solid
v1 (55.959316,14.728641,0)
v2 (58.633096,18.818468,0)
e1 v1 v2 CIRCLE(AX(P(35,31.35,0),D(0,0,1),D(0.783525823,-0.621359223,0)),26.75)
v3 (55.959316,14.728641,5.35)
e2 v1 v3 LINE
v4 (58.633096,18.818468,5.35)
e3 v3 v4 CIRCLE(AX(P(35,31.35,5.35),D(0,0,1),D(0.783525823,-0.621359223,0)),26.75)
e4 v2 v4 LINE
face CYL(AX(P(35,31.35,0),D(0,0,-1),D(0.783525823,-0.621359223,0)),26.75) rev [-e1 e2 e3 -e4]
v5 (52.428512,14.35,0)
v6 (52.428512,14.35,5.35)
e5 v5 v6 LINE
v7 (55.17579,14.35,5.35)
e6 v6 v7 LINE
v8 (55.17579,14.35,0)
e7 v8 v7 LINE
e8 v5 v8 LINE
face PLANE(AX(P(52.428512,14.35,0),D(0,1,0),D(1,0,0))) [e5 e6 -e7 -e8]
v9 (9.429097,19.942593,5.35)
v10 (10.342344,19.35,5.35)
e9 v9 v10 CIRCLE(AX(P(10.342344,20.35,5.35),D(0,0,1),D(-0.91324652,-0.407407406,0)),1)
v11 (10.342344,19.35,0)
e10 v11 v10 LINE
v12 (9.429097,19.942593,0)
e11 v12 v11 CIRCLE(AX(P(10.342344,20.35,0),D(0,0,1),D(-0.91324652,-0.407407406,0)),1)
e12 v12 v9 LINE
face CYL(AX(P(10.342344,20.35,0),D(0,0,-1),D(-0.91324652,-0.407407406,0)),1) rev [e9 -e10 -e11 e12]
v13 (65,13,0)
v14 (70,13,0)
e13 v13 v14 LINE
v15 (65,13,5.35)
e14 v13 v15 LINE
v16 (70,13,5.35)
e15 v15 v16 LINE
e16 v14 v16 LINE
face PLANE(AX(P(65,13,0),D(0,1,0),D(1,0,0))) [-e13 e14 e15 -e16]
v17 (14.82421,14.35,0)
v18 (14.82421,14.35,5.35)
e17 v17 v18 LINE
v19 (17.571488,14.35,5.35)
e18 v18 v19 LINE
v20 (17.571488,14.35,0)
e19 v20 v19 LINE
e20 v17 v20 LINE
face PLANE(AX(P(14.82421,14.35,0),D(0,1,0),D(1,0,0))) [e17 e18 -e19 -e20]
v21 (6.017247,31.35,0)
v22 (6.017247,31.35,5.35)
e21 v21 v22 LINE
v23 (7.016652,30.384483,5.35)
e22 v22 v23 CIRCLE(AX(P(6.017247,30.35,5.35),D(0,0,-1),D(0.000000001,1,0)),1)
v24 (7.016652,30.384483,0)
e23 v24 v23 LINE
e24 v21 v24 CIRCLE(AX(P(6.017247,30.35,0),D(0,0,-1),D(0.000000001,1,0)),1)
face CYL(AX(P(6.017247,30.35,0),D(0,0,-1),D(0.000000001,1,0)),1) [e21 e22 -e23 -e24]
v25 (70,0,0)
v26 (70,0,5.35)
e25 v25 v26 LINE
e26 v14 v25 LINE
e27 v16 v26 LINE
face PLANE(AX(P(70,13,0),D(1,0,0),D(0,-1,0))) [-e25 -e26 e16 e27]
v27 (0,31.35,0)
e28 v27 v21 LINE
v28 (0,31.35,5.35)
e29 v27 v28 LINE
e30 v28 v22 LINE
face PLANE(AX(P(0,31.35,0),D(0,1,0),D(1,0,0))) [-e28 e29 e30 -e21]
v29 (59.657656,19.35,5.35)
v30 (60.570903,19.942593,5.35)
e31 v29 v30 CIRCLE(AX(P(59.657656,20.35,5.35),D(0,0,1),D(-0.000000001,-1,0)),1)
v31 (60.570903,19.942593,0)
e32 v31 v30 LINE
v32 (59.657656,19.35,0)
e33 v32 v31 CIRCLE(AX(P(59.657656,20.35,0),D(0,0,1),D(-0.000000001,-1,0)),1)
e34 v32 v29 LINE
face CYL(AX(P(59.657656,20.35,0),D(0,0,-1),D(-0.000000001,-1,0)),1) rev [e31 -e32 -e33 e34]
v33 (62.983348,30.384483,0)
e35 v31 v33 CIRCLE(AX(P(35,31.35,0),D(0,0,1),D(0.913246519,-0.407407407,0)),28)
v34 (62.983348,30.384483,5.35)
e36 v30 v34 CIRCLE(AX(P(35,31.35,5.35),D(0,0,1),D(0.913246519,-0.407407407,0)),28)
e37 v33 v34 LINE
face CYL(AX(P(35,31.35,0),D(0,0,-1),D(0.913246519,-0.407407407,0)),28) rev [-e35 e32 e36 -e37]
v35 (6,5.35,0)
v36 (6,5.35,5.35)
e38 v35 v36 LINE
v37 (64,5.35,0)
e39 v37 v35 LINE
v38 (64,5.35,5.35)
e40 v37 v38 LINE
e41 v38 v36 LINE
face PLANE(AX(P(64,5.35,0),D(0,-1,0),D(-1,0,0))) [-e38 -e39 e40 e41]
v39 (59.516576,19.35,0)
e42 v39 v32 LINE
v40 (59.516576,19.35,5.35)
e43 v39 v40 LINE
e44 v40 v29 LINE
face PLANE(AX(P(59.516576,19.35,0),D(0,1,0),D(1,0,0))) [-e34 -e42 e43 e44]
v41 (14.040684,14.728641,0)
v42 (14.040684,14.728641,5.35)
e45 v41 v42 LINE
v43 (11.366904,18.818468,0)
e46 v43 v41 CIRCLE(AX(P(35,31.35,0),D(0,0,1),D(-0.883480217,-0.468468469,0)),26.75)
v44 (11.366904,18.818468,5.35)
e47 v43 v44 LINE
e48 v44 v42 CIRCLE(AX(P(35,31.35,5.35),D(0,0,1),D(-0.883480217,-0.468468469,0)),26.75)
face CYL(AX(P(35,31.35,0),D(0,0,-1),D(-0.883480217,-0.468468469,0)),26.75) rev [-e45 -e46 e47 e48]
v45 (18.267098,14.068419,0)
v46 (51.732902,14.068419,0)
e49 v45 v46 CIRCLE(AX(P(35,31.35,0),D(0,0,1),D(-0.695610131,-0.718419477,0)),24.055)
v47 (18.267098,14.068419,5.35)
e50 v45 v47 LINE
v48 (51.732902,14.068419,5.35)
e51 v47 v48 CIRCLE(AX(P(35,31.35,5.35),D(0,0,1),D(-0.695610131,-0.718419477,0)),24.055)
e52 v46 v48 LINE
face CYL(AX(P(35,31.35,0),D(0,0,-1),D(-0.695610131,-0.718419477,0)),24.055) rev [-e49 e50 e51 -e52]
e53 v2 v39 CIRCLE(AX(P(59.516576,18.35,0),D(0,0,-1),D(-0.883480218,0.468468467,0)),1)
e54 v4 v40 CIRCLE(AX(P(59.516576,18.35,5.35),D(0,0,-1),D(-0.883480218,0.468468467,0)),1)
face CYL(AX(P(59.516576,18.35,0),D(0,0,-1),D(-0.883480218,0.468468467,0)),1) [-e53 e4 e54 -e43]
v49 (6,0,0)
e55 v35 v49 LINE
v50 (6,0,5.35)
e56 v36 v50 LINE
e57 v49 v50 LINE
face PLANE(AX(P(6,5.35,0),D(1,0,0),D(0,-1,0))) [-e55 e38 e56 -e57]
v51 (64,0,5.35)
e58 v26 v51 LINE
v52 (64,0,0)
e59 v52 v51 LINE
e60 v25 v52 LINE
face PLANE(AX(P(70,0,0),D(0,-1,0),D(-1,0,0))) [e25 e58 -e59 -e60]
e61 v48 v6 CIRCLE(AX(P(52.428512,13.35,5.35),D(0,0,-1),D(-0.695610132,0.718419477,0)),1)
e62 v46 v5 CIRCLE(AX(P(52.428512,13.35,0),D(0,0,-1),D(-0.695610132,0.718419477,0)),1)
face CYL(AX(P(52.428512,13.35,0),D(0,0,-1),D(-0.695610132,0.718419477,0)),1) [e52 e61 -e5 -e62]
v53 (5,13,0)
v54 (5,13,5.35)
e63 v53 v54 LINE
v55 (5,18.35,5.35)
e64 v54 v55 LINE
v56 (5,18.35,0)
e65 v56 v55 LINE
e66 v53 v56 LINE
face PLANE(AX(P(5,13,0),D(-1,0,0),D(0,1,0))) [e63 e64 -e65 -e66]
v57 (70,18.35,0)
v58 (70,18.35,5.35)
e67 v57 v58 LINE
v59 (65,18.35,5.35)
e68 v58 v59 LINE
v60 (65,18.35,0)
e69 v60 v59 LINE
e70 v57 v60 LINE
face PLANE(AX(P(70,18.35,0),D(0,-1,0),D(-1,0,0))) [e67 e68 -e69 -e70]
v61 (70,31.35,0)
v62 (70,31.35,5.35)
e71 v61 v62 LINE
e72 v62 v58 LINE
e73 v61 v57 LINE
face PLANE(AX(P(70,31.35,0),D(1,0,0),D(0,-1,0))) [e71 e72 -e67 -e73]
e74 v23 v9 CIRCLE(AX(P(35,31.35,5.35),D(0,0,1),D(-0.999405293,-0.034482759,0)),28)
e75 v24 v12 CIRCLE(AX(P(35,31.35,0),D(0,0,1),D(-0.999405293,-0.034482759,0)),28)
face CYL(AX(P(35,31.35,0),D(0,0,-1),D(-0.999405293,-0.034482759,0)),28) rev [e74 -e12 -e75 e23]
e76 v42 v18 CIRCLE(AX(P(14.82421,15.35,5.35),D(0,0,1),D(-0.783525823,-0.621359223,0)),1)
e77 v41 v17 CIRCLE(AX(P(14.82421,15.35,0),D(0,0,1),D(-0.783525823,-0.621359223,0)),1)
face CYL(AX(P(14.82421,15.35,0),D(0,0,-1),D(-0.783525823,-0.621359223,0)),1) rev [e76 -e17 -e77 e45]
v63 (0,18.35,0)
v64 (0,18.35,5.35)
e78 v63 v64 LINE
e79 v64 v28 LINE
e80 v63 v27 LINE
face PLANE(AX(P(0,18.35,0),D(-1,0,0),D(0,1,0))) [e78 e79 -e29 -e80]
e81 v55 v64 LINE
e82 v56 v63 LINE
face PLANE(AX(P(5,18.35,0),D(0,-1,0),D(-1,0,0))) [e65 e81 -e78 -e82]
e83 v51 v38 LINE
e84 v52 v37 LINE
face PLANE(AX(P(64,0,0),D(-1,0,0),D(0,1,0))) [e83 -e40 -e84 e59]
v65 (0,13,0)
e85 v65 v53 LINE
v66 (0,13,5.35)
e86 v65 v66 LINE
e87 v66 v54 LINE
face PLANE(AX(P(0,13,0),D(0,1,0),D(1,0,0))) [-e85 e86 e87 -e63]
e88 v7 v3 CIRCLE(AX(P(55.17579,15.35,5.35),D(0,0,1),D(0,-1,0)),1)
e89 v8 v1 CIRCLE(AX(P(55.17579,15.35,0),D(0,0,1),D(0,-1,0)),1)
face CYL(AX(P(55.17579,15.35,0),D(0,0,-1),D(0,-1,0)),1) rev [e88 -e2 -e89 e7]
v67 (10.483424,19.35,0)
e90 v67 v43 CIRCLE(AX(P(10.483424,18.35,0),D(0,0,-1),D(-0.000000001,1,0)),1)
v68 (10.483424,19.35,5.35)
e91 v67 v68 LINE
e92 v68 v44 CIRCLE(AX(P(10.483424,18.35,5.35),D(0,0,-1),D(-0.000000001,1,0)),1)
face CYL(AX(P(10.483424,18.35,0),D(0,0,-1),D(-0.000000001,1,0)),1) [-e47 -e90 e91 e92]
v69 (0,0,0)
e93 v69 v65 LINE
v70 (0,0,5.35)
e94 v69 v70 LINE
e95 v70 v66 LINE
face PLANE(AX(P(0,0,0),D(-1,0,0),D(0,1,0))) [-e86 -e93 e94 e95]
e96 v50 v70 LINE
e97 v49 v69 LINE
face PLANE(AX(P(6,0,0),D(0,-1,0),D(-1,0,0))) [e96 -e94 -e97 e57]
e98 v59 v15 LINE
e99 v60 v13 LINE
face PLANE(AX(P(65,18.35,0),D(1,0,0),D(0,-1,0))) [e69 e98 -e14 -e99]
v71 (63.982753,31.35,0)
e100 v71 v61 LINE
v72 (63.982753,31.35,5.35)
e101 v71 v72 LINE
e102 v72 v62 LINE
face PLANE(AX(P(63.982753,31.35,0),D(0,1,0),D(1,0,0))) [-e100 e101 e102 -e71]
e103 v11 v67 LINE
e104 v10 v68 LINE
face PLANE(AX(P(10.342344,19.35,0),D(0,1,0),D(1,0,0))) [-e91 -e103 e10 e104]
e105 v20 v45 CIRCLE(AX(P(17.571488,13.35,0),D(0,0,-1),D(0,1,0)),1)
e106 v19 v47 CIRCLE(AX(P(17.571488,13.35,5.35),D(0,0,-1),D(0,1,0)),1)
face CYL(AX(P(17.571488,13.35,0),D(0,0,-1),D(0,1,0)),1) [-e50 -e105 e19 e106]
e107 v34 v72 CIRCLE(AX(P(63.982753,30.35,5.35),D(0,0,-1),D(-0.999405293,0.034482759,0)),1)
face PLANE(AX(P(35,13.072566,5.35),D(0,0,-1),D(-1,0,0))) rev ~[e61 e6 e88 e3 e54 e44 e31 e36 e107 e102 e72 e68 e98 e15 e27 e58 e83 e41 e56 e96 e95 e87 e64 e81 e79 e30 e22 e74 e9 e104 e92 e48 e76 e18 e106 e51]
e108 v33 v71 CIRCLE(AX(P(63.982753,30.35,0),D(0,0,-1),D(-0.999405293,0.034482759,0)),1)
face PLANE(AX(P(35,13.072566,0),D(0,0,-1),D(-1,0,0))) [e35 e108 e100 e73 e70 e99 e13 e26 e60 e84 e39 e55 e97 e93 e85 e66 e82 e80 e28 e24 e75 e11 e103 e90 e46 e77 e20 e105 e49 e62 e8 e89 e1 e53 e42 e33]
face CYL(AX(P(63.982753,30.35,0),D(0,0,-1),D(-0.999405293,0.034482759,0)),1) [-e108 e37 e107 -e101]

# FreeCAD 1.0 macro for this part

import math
import FreeCAD as App
import Part
import Sketcher

doc = App.newDocument("Part")
body = doc.addObject("PartDesign::Body", "Body")

# Sketch on XY plane
sketch1 = body.newObject("Sketcher::SketchObject", "Sketch")
sketch1.AttachmentSupport = (doc.getObject("XY_Plane"), [""])
sketch1.MapMode = "FlatFace"
sketch1.addGeometry(Part.LineSegment(App.Vector(10.48, 19.35, 0), App.Vector(10.34, 19.35, 0)), False)
sketch1.addGeometry(Part.ArcOfCircle(Part.Circle(App.Vector(10.34, 20.35, 0), App.Vector(0, 0, 1), 1), math.radians(-156), math.radians(-90)), False)
sketch1.addGeometry(Part.ArcOfCircle(Part.Circle(App.Vector(35, 31.35, 0), App.Vector(0, 0, 1), 28), math.radians(-178), math.radians(-156)), False)
sketch1.addGeometry(Part.ArcOfCircle(Part.Circle(App.Vector(6.02, 30.35, 0), App.Vector(0, 0, 1), 1), math.radians(2), math.radians(90)), False)
sketch1.addGeometry(Part.LineSegment(App.Vector(6.02, 31.35, 0), App.Vector(0, 31.35, 0)), False)
sketch1.addGeometry(Part.LineSegment(App.Vector(0, 31.35, 0), App.Vector(0, 18.35, 0)), False)
sketch1.addGeometry(Part.LineSegment(App.Vector(0, 18.35, 0), App.Vector(5, 18.35, 0)), False)
sketch1.addGeometry(Part.LineSegment(App.Vector(5, 18.35, 0), App.Vector(5, 13, 0)), False)
sketch1.addGeometry(Part.LineSegment(App.Vector(5, 13, 0), App.Vector(0, 13, 0)), False)
sketch1.addGeometry(Part.LineSegment(App.Vector(0, 13, 0), App.Vector(0, 0, 0)), False)
sketch1.addGeometry(Part.LineSegment(App.Vector(0, 0, 0), App.Vector(6, 0, 0)), False)
sketch1.addGeometry(Part.LineSegment(App.Vector(6, 0, 0), App.Vector(6, 5.35, 0)), False)
sketch1.addGeometry(Part.LineSegment(App.Vector(6, 5.35, 0), App.Vector(64, 5.35, 0)), False)
sketch1.addGeometry(Part.LineSegment(App.Vector(64, 5.35, 0), App.Vector(64, 0, 0)), False)
sketch1.addGeometry(Part.LineSegment(App.Vector(64, 0, 0), App.Vector(70, 0, 0)), False)
sketch1.addGeometry(Part.LineSegment(App.Vector(70, 0, 0), App.Vector(70, 13, 0)), False)
sketch1.addGeometry(Part.LineSegment(App.Vector(70, 13, 0), App.Vector(65, 13, 0)), False)
sketch1.addGeometry(Part.LineSegment(App.Vector(65, 13, 0), App.Vector(65, 18.35, 0)), False)
sketch1.addGeometry(Part.LineSegment(App.Vector(65, 18.35, 0), App.Vector(70, 18.35, 0)), False)
sketch1.addGeometry(Part.LineSegment(App.Vector(70, 18.35, 0), App.Vector(70, 31.35, 0)), False)
sketch1.addGeometry(Part.LineSegment(App.Vector(70, 31.35, 0), App.Vector(63.98, 31.35, 0)), False)
sketch1.addGeometry(Part.ArcOfCircle(Part.Circle(App.Vector(63.98, 30.35, 0), App.Vector(0, 0, 1), 1), math.radians(90), math.radians(178)), False)
sketch1.addGeometry(Part.ArcOfCircle(Part.Circle(App.Vector(35, 31.35, 0), App.Vector(0, 0, 1), 28), math.radians(-24), math.radians(-2)), False)
sketch1.addGeometry(Part.ArcOfCircle(Part.Circle(App.Vector(59.66, 20.35, 0), App.Vector(0, 0, 1), 1), math.radians(-90), math.radians(-24)), False)
sketch1.addGeometry(Part.LineSegment(App.Vector(59.66, 19.35, 0), App.Vector(59.52, 19.35, 0)), False)
sketch1.addGeometry(Part.ArcOfCircle(Part.Circle(App.Vector(59.52, 18.35, 0), App.Vector(0, 0, 1), 1), math.radians(90), math.radians(152)), False)
sketch1.addGeometry(Part.ArcOfCircle(Part.Circle(App.Vector(35, 31.35, 0), App.Vector(0, 0, 1), 26.75), math.radians(-38.42), math.radians(-27.93)), False)
sketch1.addGeometry(Part.ArcOfCircle(Part.Circle(App.Vector(55.18, 15.35, 0), App.Vector(0, 0, 1), 1), math.radians(-90), math.radians(-38)), False)
sketch1.addGeometry(Part.LineSegment(App.Vector(55.18, 14.35, 0), App.Vector(52.43, 14.35, 0)), False)
sketch1.addGeometry(Part.ArcOfCircle(Part.Circle(App.Vector(52.43, 13.35, 0), App.Vector(0, 0, 1), 1), math.radians(90), math.radians(134)), False)
sketch1.addGeometry(Part.ArcOfCircle(Part.Circle(App.Vector(35, 31.35, 0), App.Vector(0, 0, 1), 24.06), math.radians(-134), math.radians(-46)), False)
sketch1.addGeometry(Part.ArcOfCircle(Part.Circle(App.Vector(17.57, 13.35, 0), App.Vector(0, 0, 1), 1), math.radians(46), math.radians(90)), False)
sketch1.addGeometry(Part.LineSegment(App.Vector(17.57, 14.35, 0), App.Vector(14.82, 14.35, 0)), False)
sketch1.addGeometry(Part.ArcOfCircle(Part.Circle(App.Vector(14.82, 15.35, 0), App.Vector(0, 0, 1), 1), math.radians(-142), math.radians(-90)), False)
sketch1.addGeometry(Part.ArcOfCircle(Part.Circle(App.Vector(35, 31.35, 0), App.Vector(0, 0, 1), 26.75), math.radians(-152.07), math.radians(-141.58)), False)
sketch1.addGeometry(Part.ArcOfCircle(Part.Circle(App.Vector(10.48, 18.35, 0), App.Vector(0, 0, 1), 1), math.radians(28), math.radians(90)), False)
sketch1.addConstraint(Sketcher.Constraint("Tangent", 0, 2, 1, 2))
sketch1.addConstraint(Sketcher.Constraint("Tangent", 1, 1, 2, 2))
sketch1.addConstraint(Sketcher.Constraint("Tangent", 2, 1, 3, 1))
sketch1.addConstraint(Sketcher.Constraint("Tangent", 3, 2, 4, 1))
sketch1.addConstraint(Sketcher.Constraint("Coincident", 4, 2, 5, 1))
sketch1.addConstraint(Sketcher.Constraint("Coincident", 5, 2, 6, 1))
sketch1.addConstraint(Sketcher.Constraint("Coincident", 6, 2, 7, 1))
sketch1.addConstraint(Sketcher.Constraint("Coincident", 7, 2, 8, 1))
sketch1.addConstraint(Sketcher.Constraint("Coincident", 8, 2, 9, 1))
sketch1.addConstraint(Sketcher.Constraint("Coincident", 9, 2, 10, 1))
sketch1.addConstraint(Sketcher.Constraint("Coincident", 10, 2, 11, 1))
sketch1.addConstraint(Sketcher.Constraint("Coincident", 11, 2, 12, 1))
sketch1.addConstraint(Sketcher.Constraint("Coincident", 12, 2, 13, 1))
sketch1.addConstraint(Sketcher.Constraint("Coincident", 13, 2, 14, 1))
sketch1.addConstraint(Sketcher.Constraint("Coincident", 14, 2, 15, 1))
sketch1.addConstraint(Sketcher.Constraint("Coincident", 15, 2, 16, 1))
sketch1.addConstraint(Sketcher.Constraint("Coincident", 16, 2, 17, 1))
sketch1.addConstraint(Sketcher.Constraint("Coincident", 17, 2, 18, 1))
sketch1.addConstraint(Sketcher.Constraint("Coincident", 18, 2, 19, 1))
sketch1.addConstraint(Sketcher.Constraint("Coincident", 19, 2, 20, 1))
sketch1.addConstraint(Sketcher.Constraint("Tangent", 20, 2, 21, 1))
sketch1.addConstraint(Sketcher.Constraint("Tangent", 21, 2, 22, 2))
sketch1.addConstraint(Sketcher.Constraint("Tangent", 22, 1, 23, 2))
sketch1.addConstraint(Sketcher.Constraint("Tangent", 23, 1, 24, 1))
sketch1.addConstraint(Sketcher.Constraint("Tangent", 24, 2, 25, 1))
sketch1.addConstraint(Sketcher.Constraint("Tangent", 25, 2, 26, 2))
sketch1.addConstraint(Sketcher.Constraint("Tangent", 26, 1, 27, 2))
sketch1.addConstraint(Sketcher.Constraint("Tangent", 27, 1, 28, 1))
sketch1.addConstraint(Sketcher.Constraint("Tangent", 28, 2, 29, 1))
sketch1.addConstraint(Sketcher.Constraint("Tangent", 29, 2, 30, 2))
sketch1.addConstraint(Sketcher.Constraint("Tangent", 30, 1, 31, 1))
sketch1.addConstraint(Sketcher.Constraint("Tangent", 31, 2, 32, 1))
sketch1.addConstraint(Sketcher.Constraint("Tangent", 32, 2, 33, 2))
sketch1.addConstraint(Sketcher.Constraint("Tangent", 33, 1, 34, 2))
sketch1.addConstraint(Sketcher.Constraint("Tangent", 34, 1, 35, 1))
sketch1.addConstraint(Sketcher.Constraint("Tangent", 35, 2, 0, 1))
sketch1.addConstraint(Sketcher.Constraint("Horizontal", 0))
sketch1.addConstraint(Sketcher.Constraint("Horizontal", 4))
sketch1.addConstraint(Sketcher.Constraint("Vertical", 5))
sketch1.addConstraint(Sketcher.Constraint("Horizontal", 6))
sketch1.addConstraint(Sketcher.Constraint("Vertical", 7))
sketch1.addConstraint(Sketcher.Constraint("Horizontal", 8))
sketch1.addConstraint(Sketcher.Constraint("Vertical", 9))
sketch1.addConstraint(Sketcher.Constraint("Horizontal", 10))
sketch1.addConstraint(Sketcher.Constraint("Vertical", 11))
sketch1.addConstraint(Sketcher.Constraint("Horizontal", 12))
sketch1.addConstraint(Sketcher.Constraint("Vertical", 13))
sketch1.addConstraint(Sketcher.Constraint("Horizontal", 14))
sketch1.addConstraint(Sketcher.Constraint("Vertical", 15))
sketch1.addConstraint(Sketcher.Constraint("Horizontal", 16))
sketch1.addConstraint(Sketcher.Constraint("Vertical", 17))
sketch1.addConstraint(Sketcher.Constraint("Horizontal", 18))
sketch1.addConstraint(Sketcher.Constraint("Vertical", 19))
sketch1.addConstraint(Sketcher.Constraint("Horizontal", 20))
sketch1.addConstraint(Sketcher.Constraint("Horizontal", 24))
sketch1.addConstraint(Sketcher.Constraint("Horizontal", 28))
sketch1.addConstraint(Sketcher.Constraint("Horizontal", 32))
sketch1.addConstraint(Sketcher.Constraint("Coincident", 9, 2, -1, 1))
sketch1.addConstraint(Sketcher.Constraint("Coincident", 22, 3, 2, 3))
sketch1.addConstraint(Sketcher.Constraint("Coincident", 26, 3, 2, 3))
sketch1.addConstraint(Sketcher.Constraint("Coincident", 30, 3, 2, 3))
sketch1.addConstraint(Sketcher.Constraint("Coincident", 34, 3, 2, 3))
sketch1.addConstraint(Sketcher.Constraint("Equal", 1, 3))
sketch1.addConstraint(Sketcher.Constraint("Equal", 3, 21))
sketch1.addConstraint(Sketcher.Constraint("Equal", 2, 22))
sketch1.addConstraint(Sketcher.Constraint("Equal", 21, 23))
sketch1.addConstraint(Sketcher.Constraint("Equal", 23, 25))
sketch1.addConstraint(Sketcher.Constraint("Equal", 25, 27))
sketch1.addConstraint(Sketcher.Constraint("Equal", 27, 29))
sketch1.addConstraint(Sketcher.Constraint("Equal", 29, 31))
sketch1.addConstraint(Sketcher.Constraint("Equal", 31, 33))
sketch1.addConstraint(Sketcher.Constraint("Equal", 26, 34))
sketch1.addConstraint(Sketcher.Constraint("Equal", 33, 35))
sketch1.addConstraint(Sketcher.Constraint("PointOnObject", 4, 2, -2))
sketch1.addConstraint(Sketcher.Constraint("PointOnObject", 13, 2, -1))
sketch1.addConstraint(Sketcher.Constraint("Horizontal", 3, 3, 21, 3))
sketch1.addConstraint(Sketcher.Constraint("Horizontal", 1, 3, 23, 3))
sketch1.addConstraint(Sketcher.Constraint("Horizontal", 29, 3, 31, 3))
sketch1.addConstraint(Sketcher.Constraint("Horizontal", 34, 3, 3, 2))
sketch1.addConstraint(Sketcher.Constraint("Horizontal", 35, 3, 5, 2))
sketch1.addConstraint(Sketcher.Constraint("Horizontal", 8, 2, 15, 2))
sketch1.addConstraint(Sketcher.Constraint("Horizontal", 6, 2, 17, 2))
sketch1.addConstraint(Sketcher.Constraint("Vertical", 15, 2, 18, 2))
sketch1.addConstraint(Sketcher.Constraint("Equal", 10, 14))
sketch1.addConstraint(Sketcher.Constraint("Equal", 8, 16))
sketch1.addConstraint(Sketcher.Constraint("Equal", 4, 20))
sketch1.addConstraint(Sketcher.Constraint("Equal", 5, 9))
sketch1.addConstraint(Sketcher.Constraint("Equal", 7, 11))
sketch1.addConstraint(Sketcher.Constraint("Radius", 1, 1.0))
sketch1.addConstraint(Sketcher.Constraint("Radius", 2, 28.0))
sketch1.addConstraint(Sketcher.Constraint("DistanceX", 6, 1, 6, 2, 5.0))
sketch1.addConstraint(Sketcher.Constraint("DistanceX", 10, 1, 10, 2, 6.0))
sketch1.addConstraint(Sketcher.Constraint("DistanceX", 12, 1, 12, 2, 58.0))
sketch1.addConstraint(Sketcher.Constraint("DistanceY", 5, 2, 5, 1, 13.0))
sketch1.addConstraint(Sketcher.Constraint("Radius", 26, 26.75))
sketch1.addConstraint(Sketcher.Constraint("Radius", 30, 24.055))
sketch1.addConstraint(Sketcher.Constraint("DistanceY", 27, 3, 25, 3, 3.0))
sketch1.addConstraint(Sketcher.Constraint("DistanceY", 7, 2, 7, 1, 5.35))
pad1 = body.newObject("PartDesign::Pad", "Pad")
pad1.Profile = sketch1
pad1.Length = 5.35

doc.recompute()
